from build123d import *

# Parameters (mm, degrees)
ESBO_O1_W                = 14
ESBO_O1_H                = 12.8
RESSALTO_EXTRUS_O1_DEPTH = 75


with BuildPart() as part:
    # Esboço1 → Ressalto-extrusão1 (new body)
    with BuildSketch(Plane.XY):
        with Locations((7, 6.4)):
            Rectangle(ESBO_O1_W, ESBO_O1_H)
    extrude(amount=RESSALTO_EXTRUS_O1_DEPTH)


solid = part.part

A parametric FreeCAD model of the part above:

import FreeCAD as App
import Part
import Sketcher

V = App.Vector
Q = App.Units.Quantity

doc = App.newDocument("Part")
body = doc.addObject("PartDesign::Body", "Body")

# Sketch on XY plane
sketch1 = body.newObject("Sketcher::SketchObject", "Sketch")
sketch1.AttachmentSupport = (doc.getObject("XY_Plane"), [""])
sketch1.MapMode = "FlatFace"
sketch1.addGeometry([
    Part.LineSegment(V(0, 12.8, 0), V(0, 0, 0)),
    Part.LineSegment(V(0, 0, 0), V(14, 0, 0)),
    Part.LineSegment(V(14, 0, 0), V(14, 12.8, 0)),
    Part.LineSegment(V(14, 12.8, 0), V(0, 12.8, 0)),
], False)
sketch1.addConstraint([
    Sketcher.Constraint("Coincident", 0, 2, 1, 1),
    Sketcher.Constraint("Coincident", 1, 2, 2, 1),
    Sketcher.Constraint("Coincident", 2, 2, 3, 1),
    Sketcher.Constraint("Coincident", 3, 2, 0, 1),
    Sketcher.Constraint("Vertical", 0),
    Sketcher.Constraint("Horizontal", 1),
    Sketcher.Constraint("Vertical", 2),
    Sketcher.Constraint("Horizontal", 3),
    Sketcher.Constraint("Coincident", 0, 2, -1, 1),
    Sketcher.Constraint("DistanceX", 1, 1, 1, 2, Q("14 mm")),
    Sketcher.Constraint("DistanceY", 0, 2, 0, 1, Q("12.8 mm")),
])
pad1 = body.newObject("PartDesign::Pad", "Pad")
pad1.Profile = sketch1
pad1.Length = 75

doc.recompute()
